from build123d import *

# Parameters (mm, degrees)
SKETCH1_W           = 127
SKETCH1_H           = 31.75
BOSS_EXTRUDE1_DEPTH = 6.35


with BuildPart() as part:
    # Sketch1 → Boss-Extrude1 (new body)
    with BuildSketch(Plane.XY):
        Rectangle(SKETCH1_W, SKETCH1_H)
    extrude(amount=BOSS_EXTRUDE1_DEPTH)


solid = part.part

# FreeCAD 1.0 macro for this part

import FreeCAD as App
import Part
import Sketcher
from FreeCAD import Vector
Q = App.Units.Quantity

doc = App.newDocument("Part")
body = doc.addObject("PartDesign::Body", "Body")

# Sketch on XY plane
sketch1 = body.newObject("Sketcher::SketchObject", "Sketch")
sketch1.AttachmentSupport = (doc.getObject("XY_Plane"), [""])
sketch1.MapMode = "FlatFace"
sketch1.addGeometry([
    Part.LineSegment(Vector(-64, 16, 0), Vector(-64, -16, 0)),
    Part.LineSegment(Vector(-64, -16, 0), Vector(64, -16, 0)),
    Part.LineSegment(Vector(64, -16, 0), Vector(64, 16, 0)),
    Part.LineSegment(Vector(64, 16, 0), Vector(-64, 16, 0)),
], False)
sketch1.addConstraint([
    Sketcher.Constraint("Coincident", 0, 2, 1, 1),
    Sketcher.Constraint("Coincident", 1, 2, 2, 1),
    Sketcher.Constraint("Coincident", 2, 2, 3, 1),
    Sketcher.Constraint("Coincident", 3, 2, 0, 1),
    Sketcher.Constraint("Vertical", 0),
    Sketcher.Constraint("Horizontal", 1),
    Sketcher.Constraint("Vertical", 2),
    Sketcher.Constraint("Horizontal", 3),
    Sketcher.Constraint("Symmetric", 0, 2, 2, 2, -1, 1),
    Sketcher.Constraint("DistanceX", 1, 1, 1, 2, Q("5 in")),
    Sketcher.Constraint("DistanceY", 0, 2, 0, 1, Q("1.25 in")),
])
pad1 = body.newObject("PartDesign::Pad", "Pad")
pad1.Profile = sketch1
pad1.Length = Q("0.25 in")

doc.recompute()
